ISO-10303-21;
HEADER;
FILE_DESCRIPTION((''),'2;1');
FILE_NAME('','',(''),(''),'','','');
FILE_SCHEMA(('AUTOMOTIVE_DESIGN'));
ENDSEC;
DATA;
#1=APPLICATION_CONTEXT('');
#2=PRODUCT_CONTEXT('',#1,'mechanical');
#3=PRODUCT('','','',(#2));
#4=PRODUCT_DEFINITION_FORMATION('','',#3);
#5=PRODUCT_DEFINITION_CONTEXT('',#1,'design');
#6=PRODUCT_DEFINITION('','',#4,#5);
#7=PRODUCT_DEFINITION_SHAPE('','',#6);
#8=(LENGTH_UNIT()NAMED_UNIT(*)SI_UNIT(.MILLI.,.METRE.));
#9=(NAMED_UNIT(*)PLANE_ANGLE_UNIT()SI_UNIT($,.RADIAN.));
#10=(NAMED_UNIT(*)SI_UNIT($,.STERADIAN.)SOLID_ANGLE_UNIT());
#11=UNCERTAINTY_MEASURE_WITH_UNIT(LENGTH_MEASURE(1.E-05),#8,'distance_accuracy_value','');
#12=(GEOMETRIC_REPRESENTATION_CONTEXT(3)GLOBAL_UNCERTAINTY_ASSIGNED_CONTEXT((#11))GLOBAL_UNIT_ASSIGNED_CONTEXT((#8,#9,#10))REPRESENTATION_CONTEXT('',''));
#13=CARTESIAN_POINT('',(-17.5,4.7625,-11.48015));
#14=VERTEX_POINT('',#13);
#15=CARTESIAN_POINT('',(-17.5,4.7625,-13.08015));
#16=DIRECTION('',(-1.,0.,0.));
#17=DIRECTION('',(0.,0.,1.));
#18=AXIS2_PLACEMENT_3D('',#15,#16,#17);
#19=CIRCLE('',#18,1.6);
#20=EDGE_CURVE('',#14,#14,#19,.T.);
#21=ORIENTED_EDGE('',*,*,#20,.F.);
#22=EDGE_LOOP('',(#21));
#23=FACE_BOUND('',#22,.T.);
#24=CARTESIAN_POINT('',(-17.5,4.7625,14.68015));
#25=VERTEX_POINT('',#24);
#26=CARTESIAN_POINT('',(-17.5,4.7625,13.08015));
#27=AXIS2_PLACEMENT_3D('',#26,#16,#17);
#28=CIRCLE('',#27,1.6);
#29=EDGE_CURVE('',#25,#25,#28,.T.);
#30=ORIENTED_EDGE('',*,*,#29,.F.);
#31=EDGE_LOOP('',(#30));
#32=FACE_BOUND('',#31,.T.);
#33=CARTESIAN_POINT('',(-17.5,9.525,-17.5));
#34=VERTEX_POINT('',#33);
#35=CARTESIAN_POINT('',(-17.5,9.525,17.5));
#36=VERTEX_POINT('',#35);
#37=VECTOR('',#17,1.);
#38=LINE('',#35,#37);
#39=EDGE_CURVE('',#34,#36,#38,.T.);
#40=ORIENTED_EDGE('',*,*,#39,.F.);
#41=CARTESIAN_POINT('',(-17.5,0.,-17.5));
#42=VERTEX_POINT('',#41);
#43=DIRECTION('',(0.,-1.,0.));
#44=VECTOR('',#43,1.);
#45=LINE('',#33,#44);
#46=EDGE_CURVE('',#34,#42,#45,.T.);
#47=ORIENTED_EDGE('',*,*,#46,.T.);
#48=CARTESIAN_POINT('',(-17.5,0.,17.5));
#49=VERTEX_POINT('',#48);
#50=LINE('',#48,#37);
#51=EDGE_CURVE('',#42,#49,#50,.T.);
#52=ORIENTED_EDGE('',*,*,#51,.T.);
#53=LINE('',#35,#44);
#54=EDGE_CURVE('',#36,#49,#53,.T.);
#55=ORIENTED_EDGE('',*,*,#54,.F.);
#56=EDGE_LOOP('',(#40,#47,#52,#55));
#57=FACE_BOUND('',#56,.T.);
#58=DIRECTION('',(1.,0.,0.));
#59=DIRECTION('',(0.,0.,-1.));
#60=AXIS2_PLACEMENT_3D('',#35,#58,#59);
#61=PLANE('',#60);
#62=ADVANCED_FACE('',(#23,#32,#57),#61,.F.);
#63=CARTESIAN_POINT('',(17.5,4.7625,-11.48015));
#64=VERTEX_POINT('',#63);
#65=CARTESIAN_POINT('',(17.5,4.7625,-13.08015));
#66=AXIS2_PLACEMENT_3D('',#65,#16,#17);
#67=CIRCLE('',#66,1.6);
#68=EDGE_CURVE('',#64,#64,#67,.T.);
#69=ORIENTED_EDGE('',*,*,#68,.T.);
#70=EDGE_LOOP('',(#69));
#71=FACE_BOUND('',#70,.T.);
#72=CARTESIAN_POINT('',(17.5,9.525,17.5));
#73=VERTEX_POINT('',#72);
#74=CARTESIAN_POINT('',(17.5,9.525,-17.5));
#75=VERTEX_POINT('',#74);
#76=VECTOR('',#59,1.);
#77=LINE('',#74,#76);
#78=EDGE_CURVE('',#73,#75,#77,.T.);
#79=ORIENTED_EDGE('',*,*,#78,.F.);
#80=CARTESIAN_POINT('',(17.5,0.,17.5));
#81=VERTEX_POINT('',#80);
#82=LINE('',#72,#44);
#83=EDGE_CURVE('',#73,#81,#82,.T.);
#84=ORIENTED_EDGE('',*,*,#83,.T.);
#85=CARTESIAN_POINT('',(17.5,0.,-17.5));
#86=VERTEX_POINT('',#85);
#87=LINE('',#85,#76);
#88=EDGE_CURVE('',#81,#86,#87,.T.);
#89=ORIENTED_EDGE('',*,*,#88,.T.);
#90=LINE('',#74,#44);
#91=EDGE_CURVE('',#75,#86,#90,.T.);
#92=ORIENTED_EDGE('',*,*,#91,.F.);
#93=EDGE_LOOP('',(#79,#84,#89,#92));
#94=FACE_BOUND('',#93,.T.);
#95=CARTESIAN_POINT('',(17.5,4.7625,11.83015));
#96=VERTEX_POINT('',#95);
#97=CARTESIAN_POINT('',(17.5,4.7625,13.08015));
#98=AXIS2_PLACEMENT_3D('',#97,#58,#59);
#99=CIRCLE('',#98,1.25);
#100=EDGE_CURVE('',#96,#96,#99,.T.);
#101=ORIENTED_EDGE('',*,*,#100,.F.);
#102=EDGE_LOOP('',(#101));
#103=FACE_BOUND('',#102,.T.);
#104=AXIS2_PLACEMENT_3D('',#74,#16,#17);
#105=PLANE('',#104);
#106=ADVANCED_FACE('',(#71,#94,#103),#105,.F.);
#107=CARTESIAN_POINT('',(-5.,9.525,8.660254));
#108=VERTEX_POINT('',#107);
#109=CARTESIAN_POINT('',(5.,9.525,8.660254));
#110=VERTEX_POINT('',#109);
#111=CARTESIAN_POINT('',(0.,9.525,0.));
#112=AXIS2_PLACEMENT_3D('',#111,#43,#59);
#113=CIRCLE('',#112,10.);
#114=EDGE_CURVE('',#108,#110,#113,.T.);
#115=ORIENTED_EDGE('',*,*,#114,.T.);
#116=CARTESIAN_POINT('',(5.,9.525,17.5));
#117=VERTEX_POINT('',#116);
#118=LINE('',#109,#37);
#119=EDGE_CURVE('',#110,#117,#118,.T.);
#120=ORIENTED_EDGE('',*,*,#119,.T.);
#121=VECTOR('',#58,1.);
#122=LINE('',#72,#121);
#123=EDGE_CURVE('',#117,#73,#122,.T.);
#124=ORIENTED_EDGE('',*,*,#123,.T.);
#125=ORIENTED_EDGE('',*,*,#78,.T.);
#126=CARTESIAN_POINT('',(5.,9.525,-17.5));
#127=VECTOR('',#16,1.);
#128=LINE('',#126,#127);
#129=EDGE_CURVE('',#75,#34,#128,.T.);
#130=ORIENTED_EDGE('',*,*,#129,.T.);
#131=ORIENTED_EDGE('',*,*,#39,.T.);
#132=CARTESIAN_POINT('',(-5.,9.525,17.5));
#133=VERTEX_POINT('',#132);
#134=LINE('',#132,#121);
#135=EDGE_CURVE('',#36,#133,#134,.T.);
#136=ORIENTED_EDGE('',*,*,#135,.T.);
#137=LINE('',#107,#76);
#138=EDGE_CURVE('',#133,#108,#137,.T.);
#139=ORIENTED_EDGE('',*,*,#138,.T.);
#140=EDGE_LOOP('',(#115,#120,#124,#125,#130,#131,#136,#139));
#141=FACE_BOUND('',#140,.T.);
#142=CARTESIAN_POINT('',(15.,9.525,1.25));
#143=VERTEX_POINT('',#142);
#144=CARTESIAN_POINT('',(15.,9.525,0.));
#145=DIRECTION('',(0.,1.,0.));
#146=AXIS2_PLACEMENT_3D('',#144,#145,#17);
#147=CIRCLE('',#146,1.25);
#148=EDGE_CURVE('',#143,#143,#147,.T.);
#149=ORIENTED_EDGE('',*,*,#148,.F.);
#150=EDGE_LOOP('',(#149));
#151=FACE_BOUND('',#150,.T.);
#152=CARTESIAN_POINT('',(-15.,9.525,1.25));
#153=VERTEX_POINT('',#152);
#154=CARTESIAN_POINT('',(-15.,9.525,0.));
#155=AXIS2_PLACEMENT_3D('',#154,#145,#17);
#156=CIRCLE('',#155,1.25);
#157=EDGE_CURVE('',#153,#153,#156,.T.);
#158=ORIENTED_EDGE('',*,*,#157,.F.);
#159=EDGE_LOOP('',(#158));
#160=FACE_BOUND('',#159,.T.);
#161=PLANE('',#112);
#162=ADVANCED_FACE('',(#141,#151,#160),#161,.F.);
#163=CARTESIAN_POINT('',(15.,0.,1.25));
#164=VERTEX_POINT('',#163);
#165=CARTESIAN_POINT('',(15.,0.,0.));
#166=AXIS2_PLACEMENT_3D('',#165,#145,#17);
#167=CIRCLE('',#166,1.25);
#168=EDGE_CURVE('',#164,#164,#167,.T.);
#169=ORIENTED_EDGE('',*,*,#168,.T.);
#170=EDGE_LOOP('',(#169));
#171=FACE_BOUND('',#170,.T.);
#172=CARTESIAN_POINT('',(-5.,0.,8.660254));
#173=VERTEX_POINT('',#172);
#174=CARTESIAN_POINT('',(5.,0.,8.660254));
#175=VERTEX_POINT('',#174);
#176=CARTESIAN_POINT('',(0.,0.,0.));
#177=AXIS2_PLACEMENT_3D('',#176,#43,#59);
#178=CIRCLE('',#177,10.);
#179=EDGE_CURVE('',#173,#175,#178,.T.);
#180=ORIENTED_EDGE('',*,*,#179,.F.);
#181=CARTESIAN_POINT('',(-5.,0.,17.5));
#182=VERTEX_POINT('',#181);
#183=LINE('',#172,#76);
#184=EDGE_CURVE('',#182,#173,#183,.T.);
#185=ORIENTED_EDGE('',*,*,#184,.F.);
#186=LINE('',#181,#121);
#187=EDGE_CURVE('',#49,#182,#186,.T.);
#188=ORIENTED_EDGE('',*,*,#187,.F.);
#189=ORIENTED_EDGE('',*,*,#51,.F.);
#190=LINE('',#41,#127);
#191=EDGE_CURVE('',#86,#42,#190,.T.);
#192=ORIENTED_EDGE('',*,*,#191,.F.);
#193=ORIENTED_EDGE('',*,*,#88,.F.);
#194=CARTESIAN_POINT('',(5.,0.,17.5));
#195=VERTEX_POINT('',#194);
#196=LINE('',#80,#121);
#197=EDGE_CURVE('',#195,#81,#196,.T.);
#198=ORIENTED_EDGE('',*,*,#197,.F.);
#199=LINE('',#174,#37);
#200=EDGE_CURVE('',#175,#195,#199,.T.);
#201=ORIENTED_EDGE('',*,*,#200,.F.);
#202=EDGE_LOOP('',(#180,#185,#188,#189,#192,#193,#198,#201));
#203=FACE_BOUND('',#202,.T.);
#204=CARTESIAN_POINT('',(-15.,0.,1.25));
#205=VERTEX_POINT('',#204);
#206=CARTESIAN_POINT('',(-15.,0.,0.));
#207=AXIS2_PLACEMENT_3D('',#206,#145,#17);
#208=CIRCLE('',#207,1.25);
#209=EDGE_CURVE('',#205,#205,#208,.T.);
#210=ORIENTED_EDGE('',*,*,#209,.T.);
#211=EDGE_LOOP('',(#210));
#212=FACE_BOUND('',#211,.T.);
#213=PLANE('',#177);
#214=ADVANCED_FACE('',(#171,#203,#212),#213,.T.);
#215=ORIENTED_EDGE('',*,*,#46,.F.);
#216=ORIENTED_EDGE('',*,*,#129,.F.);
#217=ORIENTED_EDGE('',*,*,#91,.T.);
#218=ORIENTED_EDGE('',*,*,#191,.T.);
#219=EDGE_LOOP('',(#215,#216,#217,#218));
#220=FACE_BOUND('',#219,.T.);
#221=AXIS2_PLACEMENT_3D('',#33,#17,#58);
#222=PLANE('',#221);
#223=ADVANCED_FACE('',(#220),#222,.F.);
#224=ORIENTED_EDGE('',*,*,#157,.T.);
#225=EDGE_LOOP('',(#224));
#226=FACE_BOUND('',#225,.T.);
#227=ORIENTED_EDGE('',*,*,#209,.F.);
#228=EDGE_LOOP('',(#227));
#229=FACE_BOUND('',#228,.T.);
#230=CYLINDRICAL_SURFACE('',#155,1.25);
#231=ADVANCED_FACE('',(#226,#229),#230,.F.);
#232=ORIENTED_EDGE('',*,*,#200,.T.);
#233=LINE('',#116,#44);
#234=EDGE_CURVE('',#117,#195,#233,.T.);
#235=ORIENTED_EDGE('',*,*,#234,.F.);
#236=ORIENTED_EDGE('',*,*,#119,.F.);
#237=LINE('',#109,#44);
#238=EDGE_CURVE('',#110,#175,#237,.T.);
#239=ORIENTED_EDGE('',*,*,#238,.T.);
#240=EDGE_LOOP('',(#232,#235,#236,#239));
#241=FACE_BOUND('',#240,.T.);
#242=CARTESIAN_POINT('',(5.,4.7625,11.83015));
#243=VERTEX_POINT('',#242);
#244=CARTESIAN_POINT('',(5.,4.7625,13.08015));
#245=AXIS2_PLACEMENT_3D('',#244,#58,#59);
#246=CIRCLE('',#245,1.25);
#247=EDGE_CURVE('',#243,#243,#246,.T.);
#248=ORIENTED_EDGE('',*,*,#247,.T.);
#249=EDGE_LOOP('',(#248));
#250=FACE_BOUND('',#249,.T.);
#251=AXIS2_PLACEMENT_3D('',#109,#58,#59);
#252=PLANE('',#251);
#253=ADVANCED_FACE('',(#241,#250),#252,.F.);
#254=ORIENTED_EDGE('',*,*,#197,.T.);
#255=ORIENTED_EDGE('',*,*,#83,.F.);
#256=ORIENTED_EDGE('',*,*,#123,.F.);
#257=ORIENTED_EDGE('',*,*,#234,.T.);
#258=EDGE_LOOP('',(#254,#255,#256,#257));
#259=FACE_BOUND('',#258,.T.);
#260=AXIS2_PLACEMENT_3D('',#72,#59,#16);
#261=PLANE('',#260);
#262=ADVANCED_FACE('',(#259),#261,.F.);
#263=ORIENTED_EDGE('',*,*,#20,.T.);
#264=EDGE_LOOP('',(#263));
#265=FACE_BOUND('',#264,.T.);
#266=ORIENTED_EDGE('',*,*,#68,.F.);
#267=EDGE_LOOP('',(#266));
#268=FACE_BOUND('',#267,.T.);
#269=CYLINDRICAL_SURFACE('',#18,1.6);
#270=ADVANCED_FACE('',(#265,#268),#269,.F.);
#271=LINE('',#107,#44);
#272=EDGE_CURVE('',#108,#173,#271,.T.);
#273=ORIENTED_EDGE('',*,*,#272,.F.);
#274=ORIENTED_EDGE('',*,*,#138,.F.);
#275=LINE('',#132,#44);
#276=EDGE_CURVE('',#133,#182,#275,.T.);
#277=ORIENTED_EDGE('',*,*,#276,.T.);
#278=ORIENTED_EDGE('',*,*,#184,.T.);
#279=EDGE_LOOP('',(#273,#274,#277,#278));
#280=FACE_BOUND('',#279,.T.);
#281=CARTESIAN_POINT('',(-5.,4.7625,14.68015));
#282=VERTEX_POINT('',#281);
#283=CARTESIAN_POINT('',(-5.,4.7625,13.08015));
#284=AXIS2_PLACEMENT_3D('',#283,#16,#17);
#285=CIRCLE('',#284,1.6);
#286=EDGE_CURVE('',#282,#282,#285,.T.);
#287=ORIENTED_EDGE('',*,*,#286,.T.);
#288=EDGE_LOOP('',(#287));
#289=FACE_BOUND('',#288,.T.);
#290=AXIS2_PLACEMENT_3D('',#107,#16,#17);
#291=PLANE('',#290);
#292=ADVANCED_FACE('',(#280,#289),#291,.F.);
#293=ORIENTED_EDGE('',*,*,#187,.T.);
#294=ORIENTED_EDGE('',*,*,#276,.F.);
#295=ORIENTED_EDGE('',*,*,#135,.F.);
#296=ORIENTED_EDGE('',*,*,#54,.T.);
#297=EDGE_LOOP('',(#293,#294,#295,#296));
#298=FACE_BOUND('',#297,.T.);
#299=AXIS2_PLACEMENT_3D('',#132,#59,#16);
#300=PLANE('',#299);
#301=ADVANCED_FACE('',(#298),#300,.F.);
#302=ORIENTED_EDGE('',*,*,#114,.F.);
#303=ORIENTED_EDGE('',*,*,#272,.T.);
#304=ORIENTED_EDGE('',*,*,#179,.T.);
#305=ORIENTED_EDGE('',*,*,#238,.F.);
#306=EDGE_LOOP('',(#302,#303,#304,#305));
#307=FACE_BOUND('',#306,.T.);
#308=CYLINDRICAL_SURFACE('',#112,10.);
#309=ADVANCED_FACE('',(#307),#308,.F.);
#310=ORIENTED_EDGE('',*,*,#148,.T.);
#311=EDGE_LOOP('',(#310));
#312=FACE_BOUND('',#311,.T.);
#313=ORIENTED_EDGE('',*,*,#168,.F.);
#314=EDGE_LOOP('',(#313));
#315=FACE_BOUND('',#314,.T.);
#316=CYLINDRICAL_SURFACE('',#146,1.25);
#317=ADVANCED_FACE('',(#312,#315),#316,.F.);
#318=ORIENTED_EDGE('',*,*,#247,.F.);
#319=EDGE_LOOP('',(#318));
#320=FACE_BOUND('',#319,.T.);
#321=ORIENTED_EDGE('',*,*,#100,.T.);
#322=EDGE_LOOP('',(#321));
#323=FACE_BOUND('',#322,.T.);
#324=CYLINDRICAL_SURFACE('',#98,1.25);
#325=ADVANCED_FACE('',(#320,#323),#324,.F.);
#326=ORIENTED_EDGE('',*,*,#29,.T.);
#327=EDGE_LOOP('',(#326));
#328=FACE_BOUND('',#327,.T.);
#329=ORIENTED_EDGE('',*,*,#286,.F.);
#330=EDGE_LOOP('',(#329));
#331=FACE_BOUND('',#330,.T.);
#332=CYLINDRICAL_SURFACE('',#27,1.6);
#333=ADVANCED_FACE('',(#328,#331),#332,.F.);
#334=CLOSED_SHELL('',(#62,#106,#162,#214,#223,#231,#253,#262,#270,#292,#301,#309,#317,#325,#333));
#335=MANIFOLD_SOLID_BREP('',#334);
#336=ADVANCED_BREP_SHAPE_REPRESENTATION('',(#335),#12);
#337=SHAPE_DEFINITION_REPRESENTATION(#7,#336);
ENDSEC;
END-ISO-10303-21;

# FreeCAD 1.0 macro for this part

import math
import FreeCAD as App
import Part
import Sketcher

doc = App.newDocument("Part")
params = doc.addObject("Spreadsheet::Sheet", "Params")
for row, (alias, value) in enumerate([
    ("sketch1_radius", "10 mm"),
    ("sketch1_width", "35 mm"),
    ("sketch1_width2", "12.5 mm"),
    ("pad1_length", "9.525 mm"),
    ("sketch2_diameter", "2.5 mm"),
    ("hole_diameter", "2.5 mm"),
    ("sketch3_diameter", "2.5 mm"),
    ("hole2_diameter", "2.5 mm"),
    ("sketch4_diameter", "2.5 mm"),
    ("sketch5_diameter", "2.5 mm"),
    ("sketch6_diameter", "3.2 mm"),
    ("pocket3_length", "35 mm"),
    ("sketch7_diameter", "3.2 mm"),
], start=1):
    params.set(f"A{row}", alias)
    params.set(f"B{row}", "=" + value)
    params.setAlias(f"B{row}", alias)

body = doc.addObject("PartDesign::Body", "Body")

# Sketch on XZ plane
sketch1 = doc.addObject("Sketcher::SketchObject", "Sketch")
body.addObject(sketch1)
sketch1.AttachmentSupport = (doc.XZ_Plane, [""])
sketch1.MapMode = "FlatFace"
sketch1.addGeometry(Part.LineSegment(App.Vector(17.5, -17.5, 0), App.Vector(-17.5, -17.5, 0)), False)
sketch1.addGeometry(Part.LineSegment(App.Vector(-17.5, -17.5, 0), App.Vector(-17.5, 17.5, 0)), False)
sketch1.addGeometry(Part.LineSegment(App.Vector(-17.5, 17.5, 0), App.Vector(-5, 17.5, 0)), False)
sketch1.addGeometry(Part.LineSegment(App.Vector(-5, 17.5, 0), App.Vector(-5, 8.660254, 0)), False)
sketch1.addGeometry(Part.ArcOfCircle(Part.Circle(App.Vector(0, 0, 0), App.Vector(0, 0, 1), 10), math.radians(120), math.radians(240)), False)
sketch1.addGeometry(Part.ArcOfCircle(Part.Circle(App.Vector(0, 0, 0), App.Vector(0, 0, 1), 10), math.radians(-120), math.radians(-60)), False)
sketch1.addGeometry(Part.ArcOfCircle(Part.Circle(App.Vector(0, 0, 0), App.Vector(0, 0, 1), 10), math.radians(-60), math.radians(60)), False)
sketch1.addGeometry(Part.LineSegment(App.Vector(5, 8.660254, 0), App.Vector(5, 17.5, 0)), False)
sketch1.addGeometry(Part.LineSegment(App.Vector(5, 17.5, 0), App.Vector(17.5, 17.5, 0)), False)
sketch1.addGeometry(Part.LineSegment(App.Vector(17.5, 17.5, 0), App.Vector(17.5, -17.5, 0)), False)
sketch1.addConstraint(Sketcher.Constraint("Coincident", 0, 2, 1, 1))
sketch1.addConstraint(Sketcher.Constraint("Coincident", 1, 2, 2, 1))
sketch1.addConstraint(Sketcher.Constraint("Coincident", 2, 2, 3, 1))
sketch1.addConstraint(Sketcher.Constraint("Coincident", 3, 2, 4, 1))
sketch1.addConstraint(Sketcher.Constraint("Tangent", 4, 2, 5, 1))
sketch1.addConstraint(Sketcher.Constraint("Tangent", 5, 2, 6, 1))
sketch1.addConstraint(Sketcher.Constraint("Coincident", 6, 2, 7, 1))
sketch1.addConstraint(Sketcher.Constraint("Coincident", 7, 2, 8, 1))
sketch1.addConstraint(Sketcher.Constraint("Coincident", 8, 2, 9, 1))
sketch1.addConstraint(Sketcher.Constraint("Coincident", 9, 2, 0, 1))
sketch1.addConstraint(Sketcher.Constraint("Horizontal", 0))
sketch1.addConstraint(Sketcher.Constraint("Vertical", 1))
sketch1.addConstraint(Sketcher.Constraint("Horizontal", 2))
sketch1.addConstraint(Sketcher.Constraint("Vertical", 3))
sketch1.addConstraint(Sketcher.Constraint("Vertical", 7))
sketch1.addConstraint(Sketcher.Constraint("Horizontal", 8))
sketch1.addConstraint(Sketcher.Constraint("Vertical", 9))
sketch1.addConstraint(Sketcher.Constraint("Coincident", 4, 3, -1, 1))
sketch1.addConstraint(Sketcher.Constraint("Coincident", 6, 3, -1, 1))
sketch1.addConstraint(Sketcher.Constraint("Symmetric", 0, 2, 8, 2, -1, 1))
sketch1.addConstraint(Sketcher.Constraint("Symmetric", 2, 2, 7, 2, -2))
sketch1.addConstraint(Sketcher.Constraint("Horizontal", 4, 2, 5, 2))
sketch1.addConstraint(Sketcher.Constraint("Vertical", 3, 2, 4, 2))
sketch1.addConstraint(Sketcher.Constraint("Equal", 0, 1))
sketch1.addConstraint(Sketcher.Constraint("Radius", 4, 10.0))
sketch1.addConstraint(Sketcher.Constraint("DistanceX", 0, 2, 0, 1, 35.0))
sketch1.addConstraint(Sketcher.Constraint("DistanceX", 2, 1, 2, 2, 12.5))
sketch1.setExpression("Constraints[24]", "Params.sketch1_radius")
sketch1.setExpression("Constraints[25]", "Params.sketch1_width")
sketch1.setExpression("Constraints[26]", "Params.sketch1_width2")
pad1 = doc.addObject("PartDesign::Pad", "Pad")
body.addObject(pad1)
pad1.Profile = sketch1
pad1.setExpression("Length", "Params.pad1_length")
pad1.Reversed = True

# Sketch on XZ plane
sketch2 = doc.addObject("Sketcher::SketchObject", "Sketch001")
body.addObject(sketch2)
sketch2.AttachmentSupport = (doc.XZ_Plane, [""])
sketch2.MapMode = "FlatFace"
sketch2.AttachmentOffset = App.Placement(App.Vector(0, 0, -9.525), App.Rotation())
sketch2.addGeometry(Part.Circle(App.Vector(-15, 0, 0), App.Vector(0, 0, 1), 1.25), False)
sketch2.addConstraint(Sketcher.Constraint("PointOnObject", 0, 3, -1))
sketch2.addConstraint(Sketcher.Constraint("Diameter", 0, 2.5))
sketch2.addConstraint(Sketcher.Constraint("DistanceX", 0, 3, -1, 1, 15.0))
sketch2.setExpression("Constraints[1]", "Params.sketch2_diameter")
doc.recompute()
hole = doc.addObject("PartDesign::Hole", "Hole")
body.addObject(hole)
hole.Profile = sketch2
hole.ThreadType = "None"
hole.setExpression("Diameter", "Params.hole_diameter")
hole.DepthType = "ThroughAll"
hole.Reversed = True

# Sketch on XZ plane
sketch3 = doc.addObject("Sketcher::SketchObject", "Sketch002")
body.addObject(sketch3)
sketch3.AttachmentSupport = (doc.XZ_Plane, [""])
sketch3.MapMode = "FlatFace"
sketch3.AttachmentOffset = App.Placement(App.Vector(0, 0, -9.525), App.Rotation())
sketch3.addGeometry(Part.Circle(App.Vector(15, 0, 0), App.Vector(0, 0, 1), 1.25), False)
sketch3.addConstraint(Sketcher.Constraint("PointOnObject", 0, 3, -1))
sketch3.addConstraint(Sketcher.Constraint("Diameter", 0, 2.5))
sketch3.addConstraint(Sketcher.Constraint("DistanceX", -1, 1, 0, 3, 15.0))
sketch3.setExpression("Constraints[1]", "Params.sketch3_diameter")
doc.recompute()
hole2 = doc.addObject("PartDesign::Hole", "Hole001")
body.addObject(hole2)
hole2.Profile = sketch3
hole2.ThreadType = "None"
hole2.setExpression("Diameter", "Params.hole2_diameter")
hole2.DepthType = "ThroughAll"
hole2.Reversed = True

# Sketch on YZ plane
sketch4 = doc.addObject("Sketcher::SketchObject", "Sketch003")
body.addObject(sketch4)
sketch4.AttachmentSupport = (doc.YZ_Plane, [""])
sketch4.MapMode = "FlatFace"
sketch4.AttachmentOffset = App.Placement(App.Vector(0, 0, 17.5), App.Rotation())
sketch4.addGeometry(Part.Circle(App.Vector(4.7625, -13.08015, 0), App.Vector(0, 0, 1), 1.25), False)
sketch4.addConstraint(Sketcher.Constraint("Diameter", 0, 2.5))
sketch4.addConstraint(Sketcher.Constraint("DistanceX", -1, 1, 0, 3, 4.7625))
sketch4.addConstraint(Sketcher.Constraint("DistanceY", 0, 3, -1, 1, 13.08015))
sketch4.setExpression("Constraints[0]", "Params.sketch4_diameter")
pocket1 = doc.addObject("PartDesign::Pocket", "Pocket")
body.addObject(pocket1)
pocket1.Profile = sketch4
pocket1.Type = "UpToFirst"

# Sketch on YZ plane
sketch5 = doc.addObject("Sketcher::SketchObject", "Sketch004")
body.addObject(sketch5)
sketch5.AttachmentSupport = (doc.YZ_Plane, [""])
sketch5.MapMode = "FlatFace"
sketch5.AttachmentOffset = App.Placement(App.Vector(0, 0, 17.5), App.Rotation())
sketch5.addGeometry(Part.Circle(App.Vector(4.7625, 13.08015, 0), App.Vector(0, 0, 1), 1.25), False)
sketch5.addConstraint(Sketcher.Constraint("Diameter", 0, 2.5))
sketch5.addConstraint(Sketcher.Constraint("DistanceX", -1, 1, 0, 3, 4.7625))
sketch5.addConstraint(Sketcher.Constraint("DistanceY", -1, 1, 0, 3, 13.08015))
sketch5.setExpression("Constraints[0]", "Params.sketch5_diameter")
pocket2 = doc.addObject("PartDesign::Pocket", "Pocket001")
body.addObject(pocket2)
pocket2.Profile = sketch5
pocket2.Type = "UpToFirst"

# Sketch on YZ plane
sketch6 = doc.addObject("Sketcher::SketchObject", "Sketch005")
body.addObject(sketch6)
sketch6.AttachmentSupport = (doc.YZ_Plane, [""])
sketch6.MapMode = "FlatFace"
sketch6.AttachmentOffset = App.Placement(App.Vector(0, 0, -17.5), App.Rotation())
sketch6.addGeometry(Part.Circle(App.Vector(4.7625, -13.08015, 0), App.Vector(0, 0, 1), 1.6), False)
sketch6.addConstraint(Sketcher.Constraint("Diameter", 0, 3.2))
sketch6.addConstraint(Sketcher.Constraint("DistanceX", -1, 1, 0, 3, 4.7625))
sketch6.addConstraint(Sketcher.Constraint("DistanceY", 0, 3, -1, 1, 13.08015))
sketch6.setExpression("Constraints[0]", "Params.sketch6_diameter")
pocket3 = doc.addObject("PartDesign::Pocket", "Pocket002")
body.addObject(pocket3)
pocket3.Profile = sketch6
pocket3.setExpression("Length", "Params.pocket3_length")
pocket3.Reversed = True

# Sketch on YZ plane
sketch7 = doc.addObject("Sketcher::SketchObject", "Sketch006")
body.addObject(sketch7)
sketch7.AttachmentSupport = (doc.YZ_Plane, [""])
sketch7.MapMode = "FlatFace"
sketch7.AttachmentOffset = App.Placement(App.Vector(0, 0, -17.5), App.Rotation())
sketch7.addGeometry(Part.Circle(App.Vector(4.7625, 13.08015, 0), App.Vector(0, 0, 1), 1.6), False)
sketch7.addConstraint(Sketcher.Constraint("Diameter", 0, 3.2))
sketch7.addConstraint(Sketcher.Constraint("DistanceX", -1, 1, 0, 3, 4.7625))
sketch7.addConstraint(Sketcher.Constraint("DistanceY", -1, 1, 0, 3, 13.08015))
sketch7.setExpression("Constraints[0]", "Params.sketch7_diameter")
pocket4 = doc.addObject("PartDesign::Pocket", "Pocket003")
body.addObject(pocket4)
pocket4.Profile = sketch7
pocket4.Type = "UpToFirst"
pocket4.Reversed = True

doc.recompute()
